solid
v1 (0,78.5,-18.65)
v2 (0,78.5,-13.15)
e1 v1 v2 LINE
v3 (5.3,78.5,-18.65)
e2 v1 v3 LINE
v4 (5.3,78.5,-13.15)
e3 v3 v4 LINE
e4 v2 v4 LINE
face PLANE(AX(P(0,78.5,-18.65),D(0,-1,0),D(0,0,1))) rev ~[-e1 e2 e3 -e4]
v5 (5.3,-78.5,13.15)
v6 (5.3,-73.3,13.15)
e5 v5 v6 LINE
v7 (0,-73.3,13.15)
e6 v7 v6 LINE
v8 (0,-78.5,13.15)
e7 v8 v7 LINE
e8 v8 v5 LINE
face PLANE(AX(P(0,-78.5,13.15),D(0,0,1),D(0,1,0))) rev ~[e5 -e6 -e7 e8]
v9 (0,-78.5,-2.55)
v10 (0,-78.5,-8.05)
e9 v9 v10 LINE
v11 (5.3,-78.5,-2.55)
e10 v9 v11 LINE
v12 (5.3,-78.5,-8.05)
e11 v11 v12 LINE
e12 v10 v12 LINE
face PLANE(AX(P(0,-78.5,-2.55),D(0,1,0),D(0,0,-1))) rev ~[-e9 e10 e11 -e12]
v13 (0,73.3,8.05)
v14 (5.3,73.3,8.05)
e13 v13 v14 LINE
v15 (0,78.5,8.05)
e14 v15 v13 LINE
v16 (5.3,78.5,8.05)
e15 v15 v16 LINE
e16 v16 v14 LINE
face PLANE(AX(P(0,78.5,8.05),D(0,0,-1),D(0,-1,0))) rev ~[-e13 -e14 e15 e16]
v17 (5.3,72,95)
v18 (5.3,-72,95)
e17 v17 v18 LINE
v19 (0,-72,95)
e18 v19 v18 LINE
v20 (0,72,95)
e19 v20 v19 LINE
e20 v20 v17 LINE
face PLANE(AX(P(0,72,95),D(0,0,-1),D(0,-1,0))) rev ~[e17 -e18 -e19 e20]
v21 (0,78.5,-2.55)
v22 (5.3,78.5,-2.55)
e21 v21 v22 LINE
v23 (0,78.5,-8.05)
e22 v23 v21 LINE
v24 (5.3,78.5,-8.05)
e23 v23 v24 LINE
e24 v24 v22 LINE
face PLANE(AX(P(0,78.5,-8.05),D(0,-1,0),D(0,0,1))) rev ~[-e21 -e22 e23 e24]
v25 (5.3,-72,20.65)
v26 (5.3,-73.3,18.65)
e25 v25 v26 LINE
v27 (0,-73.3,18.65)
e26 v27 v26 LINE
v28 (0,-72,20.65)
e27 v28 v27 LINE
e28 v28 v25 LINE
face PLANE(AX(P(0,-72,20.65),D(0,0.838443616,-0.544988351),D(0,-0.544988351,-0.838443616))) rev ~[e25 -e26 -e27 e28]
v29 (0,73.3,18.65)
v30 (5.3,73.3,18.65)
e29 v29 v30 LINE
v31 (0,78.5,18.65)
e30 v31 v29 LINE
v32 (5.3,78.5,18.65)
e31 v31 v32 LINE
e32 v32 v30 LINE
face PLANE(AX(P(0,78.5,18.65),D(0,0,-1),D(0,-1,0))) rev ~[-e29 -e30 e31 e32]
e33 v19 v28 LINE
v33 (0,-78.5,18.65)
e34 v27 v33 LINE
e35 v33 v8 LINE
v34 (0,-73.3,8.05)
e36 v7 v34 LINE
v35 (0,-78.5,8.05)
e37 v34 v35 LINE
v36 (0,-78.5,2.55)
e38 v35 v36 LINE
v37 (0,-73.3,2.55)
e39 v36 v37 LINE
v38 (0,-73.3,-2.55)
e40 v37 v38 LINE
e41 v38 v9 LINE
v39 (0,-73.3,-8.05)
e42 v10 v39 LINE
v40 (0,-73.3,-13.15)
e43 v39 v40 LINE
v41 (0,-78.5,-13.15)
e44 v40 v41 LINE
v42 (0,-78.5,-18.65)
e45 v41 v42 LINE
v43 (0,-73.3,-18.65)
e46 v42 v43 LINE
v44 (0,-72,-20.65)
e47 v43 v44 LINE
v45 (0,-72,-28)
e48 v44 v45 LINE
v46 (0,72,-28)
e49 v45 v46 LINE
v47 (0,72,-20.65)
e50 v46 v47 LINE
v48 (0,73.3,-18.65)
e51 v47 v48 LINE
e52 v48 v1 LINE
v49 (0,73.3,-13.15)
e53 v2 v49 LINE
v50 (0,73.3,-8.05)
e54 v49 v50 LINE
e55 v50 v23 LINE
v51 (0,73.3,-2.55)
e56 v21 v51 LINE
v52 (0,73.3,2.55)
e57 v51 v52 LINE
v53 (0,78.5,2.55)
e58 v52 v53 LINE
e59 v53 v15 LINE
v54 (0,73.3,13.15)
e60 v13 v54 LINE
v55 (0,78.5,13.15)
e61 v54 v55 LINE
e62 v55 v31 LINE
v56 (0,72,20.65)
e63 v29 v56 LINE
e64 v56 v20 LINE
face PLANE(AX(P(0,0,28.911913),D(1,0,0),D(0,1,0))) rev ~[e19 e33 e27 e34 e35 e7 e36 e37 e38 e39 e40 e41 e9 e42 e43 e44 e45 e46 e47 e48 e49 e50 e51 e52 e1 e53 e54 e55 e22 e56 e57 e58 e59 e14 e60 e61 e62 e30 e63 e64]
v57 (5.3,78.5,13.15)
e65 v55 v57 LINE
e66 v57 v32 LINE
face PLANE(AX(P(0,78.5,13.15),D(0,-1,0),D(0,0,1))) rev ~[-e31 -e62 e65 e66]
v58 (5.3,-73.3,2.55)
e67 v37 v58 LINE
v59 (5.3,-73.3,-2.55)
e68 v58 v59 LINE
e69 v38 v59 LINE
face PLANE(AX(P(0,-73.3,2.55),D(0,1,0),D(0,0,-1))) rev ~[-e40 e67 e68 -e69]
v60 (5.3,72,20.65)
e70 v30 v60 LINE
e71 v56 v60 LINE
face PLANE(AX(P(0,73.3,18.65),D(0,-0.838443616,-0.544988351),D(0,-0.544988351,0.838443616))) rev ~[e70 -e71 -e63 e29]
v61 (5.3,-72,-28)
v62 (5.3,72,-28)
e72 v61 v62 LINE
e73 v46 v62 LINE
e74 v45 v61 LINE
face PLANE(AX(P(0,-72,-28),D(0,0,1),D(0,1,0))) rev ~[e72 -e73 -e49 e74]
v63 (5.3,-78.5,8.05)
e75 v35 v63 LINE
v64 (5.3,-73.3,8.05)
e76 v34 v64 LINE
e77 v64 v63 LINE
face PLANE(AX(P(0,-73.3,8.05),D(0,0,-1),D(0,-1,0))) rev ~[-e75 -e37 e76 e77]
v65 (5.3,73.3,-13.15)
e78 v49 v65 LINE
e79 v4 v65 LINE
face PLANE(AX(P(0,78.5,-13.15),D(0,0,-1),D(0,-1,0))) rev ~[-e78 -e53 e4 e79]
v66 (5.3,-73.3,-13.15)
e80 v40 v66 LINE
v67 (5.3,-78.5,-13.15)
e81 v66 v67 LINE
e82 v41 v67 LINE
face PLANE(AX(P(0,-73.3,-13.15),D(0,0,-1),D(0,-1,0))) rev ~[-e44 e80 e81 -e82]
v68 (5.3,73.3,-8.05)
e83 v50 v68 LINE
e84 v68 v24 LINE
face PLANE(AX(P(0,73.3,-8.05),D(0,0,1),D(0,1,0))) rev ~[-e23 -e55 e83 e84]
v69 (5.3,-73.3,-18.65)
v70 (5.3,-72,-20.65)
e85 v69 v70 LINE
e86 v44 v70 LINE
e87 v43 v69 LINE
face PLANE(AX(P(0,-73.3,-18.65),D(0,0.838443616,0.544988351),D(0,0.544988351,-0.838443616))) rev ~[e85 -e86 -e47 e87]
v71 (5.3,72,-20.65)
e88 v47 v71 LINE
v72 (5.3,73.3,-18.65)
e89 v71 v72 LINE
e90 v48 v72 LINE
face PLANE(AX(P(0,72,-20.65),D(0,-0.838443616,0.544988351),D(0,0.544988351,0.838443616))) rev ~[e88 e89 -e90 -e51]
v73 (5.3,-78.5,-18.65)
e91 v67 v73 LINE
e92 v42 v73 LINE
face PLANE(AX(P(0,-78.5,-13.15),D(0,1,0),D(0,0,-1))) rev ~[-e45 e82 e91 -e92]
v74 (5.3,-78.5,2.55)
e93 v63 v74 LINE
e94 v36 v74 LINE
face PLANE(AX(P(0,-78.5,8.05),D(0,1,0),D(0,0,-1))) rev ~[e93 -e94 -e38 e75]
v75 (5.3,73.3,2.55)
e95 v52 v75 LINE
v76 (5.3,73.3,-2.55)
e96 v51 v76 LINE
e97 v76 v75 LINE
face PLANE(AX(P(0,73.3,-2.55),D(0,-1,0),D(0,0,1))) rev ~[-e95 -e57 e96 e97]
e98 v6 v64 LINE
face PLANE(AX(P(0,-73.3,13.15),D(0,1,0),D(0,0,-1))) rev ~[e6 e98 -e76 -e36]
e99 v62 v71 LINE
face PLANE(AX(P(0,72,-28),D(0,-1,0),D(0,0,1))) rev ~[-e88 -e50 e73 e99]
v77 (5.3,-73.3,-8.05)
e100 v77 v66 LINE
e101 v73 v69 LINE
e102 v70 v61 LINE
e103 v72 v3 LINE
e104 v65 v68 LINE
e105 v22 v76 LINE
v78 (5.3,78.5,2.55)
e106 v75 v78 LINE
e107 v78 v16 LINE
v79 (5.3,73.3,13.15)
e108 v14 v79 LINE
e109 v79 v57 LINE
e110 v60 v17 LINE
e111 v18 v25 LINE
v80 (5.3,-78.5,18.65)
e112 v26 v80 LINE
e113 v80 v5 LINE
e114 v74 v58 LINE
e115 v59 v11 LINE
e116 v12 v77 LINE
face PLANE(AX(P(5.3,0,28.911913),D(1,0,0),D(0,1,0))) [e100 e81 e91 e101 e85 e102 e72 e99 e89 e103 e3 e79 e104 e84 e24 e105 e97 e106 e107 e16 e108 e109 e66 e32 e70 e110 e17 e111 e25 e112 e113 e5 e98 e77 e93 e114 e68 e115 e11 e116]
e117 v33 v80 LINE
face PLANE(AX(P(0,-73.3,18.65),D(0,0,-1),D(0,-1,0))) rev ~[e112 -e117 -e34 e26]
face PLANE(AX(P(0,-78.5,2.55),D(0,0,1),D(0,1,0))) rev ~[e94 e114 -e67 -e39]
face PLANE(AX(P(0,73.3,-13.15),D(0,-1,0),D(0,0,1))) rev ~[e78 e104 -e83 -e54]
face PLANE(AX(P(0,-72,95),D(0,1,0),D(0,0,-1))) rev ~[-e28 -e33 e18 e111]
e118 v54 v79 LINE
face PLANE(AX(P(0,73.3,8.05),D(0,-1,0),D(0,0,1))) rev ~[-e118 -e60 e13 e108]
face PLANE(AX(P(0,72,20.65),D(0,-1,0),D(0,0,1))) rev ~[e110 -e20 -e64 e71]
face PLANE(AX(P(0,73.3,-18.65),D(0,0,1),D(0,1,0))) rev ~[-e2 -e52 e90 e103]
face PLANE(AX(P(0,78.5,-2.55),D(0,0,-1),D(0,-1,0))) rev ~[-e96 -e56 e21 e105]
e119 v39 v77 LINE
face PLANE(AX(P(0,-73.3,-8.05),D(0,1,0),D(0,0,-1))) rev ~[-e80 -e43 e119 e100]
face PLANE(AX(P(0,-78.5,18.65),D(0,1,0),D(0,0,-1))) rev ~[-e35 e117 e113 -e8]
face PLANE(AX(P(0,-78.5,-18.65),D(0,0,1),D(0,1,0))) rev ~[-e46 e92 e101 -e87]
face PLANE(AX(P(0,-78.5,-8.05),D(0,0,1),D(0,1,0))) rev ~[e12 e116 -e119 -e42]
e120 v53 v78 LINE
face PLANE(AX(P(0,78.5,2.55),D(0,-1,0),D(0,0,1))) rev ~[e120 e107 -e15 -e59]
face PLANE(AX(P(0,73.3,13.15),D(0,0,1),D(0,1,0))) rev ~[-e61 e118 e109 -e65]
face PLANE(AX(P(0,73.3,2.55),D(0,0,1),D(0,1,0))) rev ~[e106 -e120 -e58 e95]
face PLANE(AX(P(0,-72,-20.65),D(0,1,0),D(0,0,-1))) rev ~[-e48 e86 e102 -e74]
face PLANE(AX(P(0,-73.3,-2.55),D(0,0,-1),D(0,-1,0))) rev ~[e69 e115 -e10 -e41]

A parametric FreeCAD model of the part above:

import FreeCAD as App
import Part
import Sketcher
from FreeCAD import Vector

doc = App.newDocument("Part")
body = doc.addObject("PartDesign::Body", "Body")

# Sketch on YZ plane
sketch1 = doc.addObject("Sketcher::SketchObject", "Sketch")
body.addObject(sketch1)
sketch1.AttachmentSupport = (doc.YZ_Plane, [""])
sketch1.MapMode = "FlatFace"
sketch1.addGeometry(Part.LineSegment(Vector(-72, 20.6, 0), Vector(-73.3, 18.6, 0)), False)
sketch1.addGeometry(Part.LineSegment(Vector(-73.3, 18.6, 0), Vector(-78.5, 18.6, 0)), False)
sketch1.addGeometry(Part.LineSegment(Vector(-78.5, 18.6, 0), Vector(-78.5, 13.2, 0)), False)
sketch1.addGeometry(Part.LineSegment(Vector(-78.5, 13.2, 0), Vector(-73.3, 13.2, 0)), False)
sketch1.addGeometry(Part.LineSegment(Vector(-73.3, 13.2, 0), Vector(-73.3, 8.1, 0)), False)
sketch1.addGeometry(Part.LineSegment(Vector(-73.3, 8.1, 0), Vector(-78.5, 8.1, 0)), False)
sketch1.addGeometry(Part.LineSegment(Vector(-78.5, 8.1, 0), Vector(-78.5, 2.5, 0)), False)
sketch1.addGeometry(Part.LineSegment(Vector(-78.5, 2.5, 0), Vector(-73.3, 2.5, 0)), False)
sketch1.addGeometry(Part.LineSegment(Vector(-73.3, 2.5, 0), Vector(-73.3, -2.5, 0)), False)
sketch1.addGeometry(Part.LineSegment(Vector(-73.3, -2.5, 0), Vector(-78.5, -2.5, 0)), False)
sketch1.addGeometry(Part.LineSegment(Vector(-78.5, -2.5, 0), Vector(-78.5, -8.1, 0)), False)
sketch1.addGeometry(Part.LineSegment(Vector(-78.5, -8.1, 0), Vector(-73.3, -8.1, 0)), False)
sketch1.addGeometry(Part.LineSegment(Vector(-73.3, -8.1, 0), Vector(-73.3, -13.2, 0)), False)
sketch1.addGeometry(Part.LineSegment(Vector(-73.3, -13.2, 0), Vector(-78.5, -13.2, 0)), False)
sketch1.addGeometry(Part.LineSegment(Vector(-78.5, -13.2, 0), Vector(-78.5, -18.6, 0)), False)
sketch1.addGeometry(Part.LineSegment(Vector(-78.5, -18.6, 0), Vector(-73.3, -18.6, 0)), False)
sketch1.addGeometry(Part.LineSegment(Vector(-73.3, -18.6, 0), Vector(-72, -20.6, 0)), False)
sketch1.addGeometry(Part.LineSegment(Vector(-72, -20.6, 0), Vector(-72, -28, 0)), False)
sketch1.addGeometry(Part.LineSegment(Vector(-72, -28, 0), Vector(72, -28, 0)), False)
sketch1.addGeometry(Part.LineSegment(Vector(72, -28, 0), Vector(72, -20.6, 0)), False)
sketch1.addGeometry(Part.LineSegment(Vector(72, -20.6, 0), Vector(73.3, -18.6, 0)), False)
sketch1.addGeometry(Part.LineSegment(Vector(73.3, -18.6, 0), Vector(78.5, -18.6, 0)), False)
sketch1.addGeometry(Part.LineSegment(Vector(78.5, -18.6, 0), Vector(78.5, -13.2, 0)), False)
sketch1.addGeometry(Part.LineSegment(Vector(78.5, -13.2, 0), Vector(73.3, -13.2, 0)), False)
sketch1.addGeometry(Part.LineSegment(Vector(73.3, -13.2, 0), Vector(73.3, -8.1, 0)), False)
sketch1.addGeometry(Part.LineSegment(Vector(73.3, -8.1, 0), Vector(78.5, -8.1, 0)), False)
sketch1.addGeometry(Part.LineSegment(Vector(78.5, -8.1, 0), Vector(78.5, -2.5, 0)), False)
sketch1.addGeometry(Part.LineSegment(Vector(78.5, -2.5, 0), Vector(73.3, -2.5, 0)), False)
sketch1.addGeometry(Part.LineSegment(Vector(73.3, -2.5, 0), Vector(73.3, 2.5, 0)), False)
sketch1.addGeometry(Part.LineSegment(Vector(73.3, 2.5, 0), Vector(78.5, 2.5, 0)), False)
sketch1.addGeometry(Part.LineSegment(Vector(78.5, 2.5, 0), Vector(78.5, 8.1, 0)), False)
sketch1.addGeometry(Part.LineSegment(Vector(78.5, 8.1, 0), Vector(73.3, 8.1, 0)), False)
sketch1.addGeometry(Part.LineSegment(Vector(73.3, 8.1, 0), Vector(73.3, 13.2, 0)), False)
sketch1.addGeometry(Part.LineSegment(Vector(73.3, 13.2, 0), Vector(78.5, 13.2, 0)), False)
sketch1.addGeometry(Part.LineSegment(Vector(78.5, 13.2, 0), Vector(78.5, 18.6, 0)), False)
sketch1.addGeometry(Part.LineSegment(Vector(78.5, 18.6, 0), Vector(73.3, 18.6, 0)), False)
sketch1.addGeometry(Part.LineSegment(Vector(73.3, 18.6, 0), Vector(72, 20.6, 0)), False)
sketch1.addGeometry(Part.LineSegment(Vector(72, 20.6, 0), Vector(72, 95, 0)), False)
sketch1.addGeometry(Part.LineSegment(Vector(72, 95, 0), Vector(-72, 95, 0)), False)
sketch1.addGeometry(Part.LineSegment(Vector(-72, 95, 0), Vector(-72, 20.6, 0)), False)
sketch1.addConstraint(Sketcher.Constraint("Coincident", 0, 2, 1, 1))
sketch1.addConstraint(Sketcher.Constraint("Coincident", 1, 2, 2, 1))
sketch1.addConstraint(Sketcher.Constraint("Coincident", 2, 2, 3, 1))
sketch1.addConstraint(Sketcher.Constraint("Coincident", 3, 2, 4, 1))
sketch1.addConstraint(Sketcher.Constraint("Coincident", 4, 2, 5, 1))
sketch1.addConstraint(Sketcher.Constraint("Coincident", 5, 2, 6, 1))
sketch1.addConstraint(Sketcher.Constraint("Coincident", 6, 2, 7, 1))
sketch1.addConstraint(Sketcher.Constraint("Coincident", 7, 2, 8, 1))
sketch1.addConstraint(Sketcher.Constraint("Coincident", 8, 2, 9, 1))
sketch1.addConstraint(Sketcher.Constraint("Coincident", 9, 2, 10, 1))
sketch1.addConstraint(Sketcher.Constraint("Coincident", 10, 2, 11, 1))
sketch1.addConstraint(Sketcher.Constraint("Coincident", 11, 2, 12, 1))
sketch1.addConstraint(Sketcher.Constraint("Coincident", 12, 2, 13, 1))
sketch1.addConstraint(Sketcher.Constraint("Coincident", 13, 2, 14, 1))
sketch1.addConstraint(Sketcher.Constraint("Coincident", 14, 2, 15, 1))
sketch1.addConstraint(Sketcher.Constraint("Coincident", 15, 2, 16, 1))
sketch1.addConstraint(Sketcher.Constraint("Coincident", 16, 2, 17, 1))
sketch1.addConstraint(Sketcher.Constraint("Coincident", 17, 2, 18, 1))
sketch1.addConstraint(Sketcher.Constraint("Coincident", 18, 2, 19, 1))
sketch1.addConstraint(Sketcher.Constraint("Coincident", 19, 2, 20, 1))
sketch1.addConstraint(Sketcher.Constraint("Coincident", 20, 2, 21, 1))
sketch1.addConstraint(Sketcher.Constraint("Coincident", 21, 2, 22, 1))
sketch1.addConstraint(Sketcher.Constraint("Coincident", 22, 2, 23, 1))
sketch1.addConstraint(Sketcher.Constraint("Coincident", 23, 2, 24, 1))
sketch1.addConstraint(Sketcher.Constraint("Coincident", 24, 2, 25, 1))
sketch1.addConstraint(Sketcher.Constraint("Coincident", 25, 2, 26, 1))
sketch1.addConstraint(Sketcher.Constraint("Coincident", 26, 2, 27, 1))
sketch1.addConstraint(Sketcher.Constraint("Coincident", 27, 2, 28, 1))
sketch1.addConstraint(Sketcher.Constraint("Coincident", 28, 2, 29, 1))
sketch1.addConstraint(Sketcher.Constraint("Coincident", 29, 2, 30, 1))
sketch1.addConstraint(Sketcher.Constraint("Coincident", 30, 2, 31, 1))
sketch1.addConstraint(Sketcher.Constraint("Coincident", 31, 2, 32, 1))
sketch1.addConstraint(Sketcher.Constraint("Coincident", 32, 2, 33, 1))
sketch1.addConstraint(Sketcher.Constraint("Coincident", 33, 2, 34, 1))
sketch1.addConstraint(Sketcher.Constraint("Coincident", 34, 2, 35, 1))
sketch1.addConstraint(Sketcher.Constraint("Coincident", 35, 2, 36, 1))
sketch1.addConstraint(Sketcher.Constraint("Coincident", 36, 2, 37, 1))
sketch1.addConstraint(Sketcher.Constraint("Coincident", 37, 2, 38, 1))
sketch1.addConstraint(Sketcher.Constraint("Coincident", 38, 2, 39, 1))
sketch1.addConstraint(Sketcher.Constraint("Coincident", 39, 2, 0, 1))
sketch1.addConstraint(Sketcher.Constraint("Horizontal", 1))
sketch1.addConstraint(Sketcher.Constraint("Vertical", 2))
sketch1.addConstraint(Sketcher.Constraint("Horizontal", 3))
sketch1.addConstraint(Sketcher.Constraint("Vertical", 4))
sketch1.addConstraint(Sketcher.Constraint("Horizontal", 5))
sketch1.addConstraint(Sketcher.Constraint("Vertical", 6))
sketch1.addConstraint(Sketcher.Constraint("Horizontal", 7))
sketch1.addConstraint(Sketcher.Constraint("Vertical", 8))
sketch1.addConstraint(Sketcher.Constraint("Horizontal", 9))
sketch1.addConstraint(Sketcher.Constraint("Vertical", 10))
sketch1.addConstraint(Sketcher.Constraint("Horizontal", 11))
sketch1.addConstraint(Sketcher.Constraint("Vertical", 12))
sketch1.addConstraint(Sketcher.Constraint("Horizontal", 13))
sketch1.addConstraint(Sketcher.Constraint("Vertical", 14))
sketch1.addConstraint(Sketcher.Constraint("Horizontal", 15))
sketch1.addConstraint(Sketcher.Constraint("Vertical", 17))
sketch1.addConstraint(Sketcher.Constraint("Horizontal", 18))
sketch1.addConstraint(Sketcher.Constraint("Vertical", 19))
sketch1.addConstraint(Sketcher.Constraint("Horizontal", 21))
sketch1.addConstraint(Sketcher.Constraint("Vertical", 22))
sketch1.addConstraint(Sketcher.Constraint("Horizontal", 23))
sketch1.addConstraint(Sketcher.Constraint("Vertical", 24))
sketch1.addConstraint(Sketcher.Constraint("Horizontal", 25))
sketch1.addConstraint(Sketcher.Constraint("Vertical", 26))
sketch1.addConstraint(Sketcher.Constraint("Horizontal", 27))
sketch1.addConstraint(Sketcher.Constraint("Vertical", 28))
sketch1.addConstraint(Sketcher.Constraint("Horizontal", 29))
sketch1.addConstraint(Sketcher.Constraint("Vertical", 30))
sketch1.addConstraint(Sketcher.Constraint("Horizontal", 31))
sketch1.addConstraint(Sketcher.Constraint("Vertical", 32))
sketch1.addConstraint(Sketcher.Constraint("Horizontal", 33))
sketch1.addConstraint(Sketcher.Constraint("Vertical", 34))
sketch1.addConstraint(Sketcher.Constraint("Horizontal", 35))
sketch1.addConstraint(Sketcher.Constraint("Vertical", 37))
sketch1.addConstraint(Sketcher.Constraint("Horizontal", 38))
sketch1.addConstraint(Sketcher.Constraint("Vertical", 39))
sketch1.addConstraint(Sketcher.Constraint("Symmetric", 0, 2, 20, 2, -1, 1))
sketch1.addConstraint(Sketcher.Constraint("Symmetric", 2, 2, 22, 2, -1, 1))
sketch1.addConstraint(Sketcher.Constraint("Symmetric", 4, 2, 24, 2, -1, 1))
sketch1.addConstraint(Sketcher.Constraint("Symmetric", 6, 2, 26, 2, -1, 1))
sketch1.addConstraint(Sketcher.Constraint("Symmetric", 8, 2, 28, 2, -1, 1))
sketch1.addConstraint(Sketcher.Constraint("Symmetric", 10, 2, 30, 2, -1, 1))
sketch1.addConstraint(Sketcher.Constraint("Symmetric", 12, 2, 32, 2, -1, 1))
sketch1.addConstraint(Sketcher.Constraint("Symmetric", 14, 2, 34, 2, -1, 1))
sketch1.addConstraint(Sketcher.Constraint("Symmetric", 16, 2, 36, 2, -1, 1))
sketch1.addConstraint(Sketcher.Constraint("Symmetric", 19, 2, 39, 2, -1, 1))
sketch1.addConstraint(Sketcher.Constraint("Symmetric", 16, 2, 19, 2, -2))
sketch1.addConstraint(Sketcher.Constraint("Symmetric", 15, 2, 20, 2, -2))
sketch1.addConstraint(Sketcher.Constraint("Symmetric", 13, 2, 22, 2, -2))
sketch1.addConstraint(Sketcher.Constraint("Symmetric", 11, 2, 24, 2, -2))
sketch1.addConstraint(Sketcher.Constraint("Symmetric", 9, 2, 26, 2, -2))
sketch1.addConstraint(Sketcher.Constraint("Parallel", 16, 36))
sketch1.addConstraint(Sketcher.Constraint("Vertical", 0, 2, 3, 2))
sketch1.addConstraint(Sketcher.Constraint("Vertical", 2, 2, 5, 2))
sketch1.addConstraint(Sketcher.Constraint("Vertical", 4, 2, 7, 2))
sketch1.addConstraint(Sketcher.Constraint("Equal", 2, 6))
sketch1.addConstraint(Sketcher.Constraint("Equal", 4, 8))
sketch1.addConstraint(Sketcher.Constraint("DistanceX", 18, 1, 18, 2, 144.0))
sketch1.addConstraint(Sketcher.Constraint("DistanceX", 1, 2, 1, 1, 5.2))
sketch1.addConstraint(Sketcher.Constraint("DistanceY", 2, 2, 2, 1, 5.5))
sketch1.addConstraint(Sketcher.Constraint("DistanceY", 4, 2, 4, 1, 5.1))
sketch1.addConstraint(Sketcher.Constraint("DistanceY", 17, 2, -1, 1, 28.0))
sketch1.addConstraint(Sketcher.Constraint("DistanceY", -1, 1, 37, 2, 95.0))
sketch1.addConstraint(Sketcher.Constraint("DistanceY", 16, 2, 15, 2, 2.0))
sketch1.addConstraint(Sketcher.Constraint("DistanceX", 0, 2, -1, 1, 73.3))
pad1 = doc.addObject("PartDesign::Pad", "Pad")
body.addObject(pad1)
pad1.Profile = sketch1
pad1.Length = 5.3

doc.recompute()
